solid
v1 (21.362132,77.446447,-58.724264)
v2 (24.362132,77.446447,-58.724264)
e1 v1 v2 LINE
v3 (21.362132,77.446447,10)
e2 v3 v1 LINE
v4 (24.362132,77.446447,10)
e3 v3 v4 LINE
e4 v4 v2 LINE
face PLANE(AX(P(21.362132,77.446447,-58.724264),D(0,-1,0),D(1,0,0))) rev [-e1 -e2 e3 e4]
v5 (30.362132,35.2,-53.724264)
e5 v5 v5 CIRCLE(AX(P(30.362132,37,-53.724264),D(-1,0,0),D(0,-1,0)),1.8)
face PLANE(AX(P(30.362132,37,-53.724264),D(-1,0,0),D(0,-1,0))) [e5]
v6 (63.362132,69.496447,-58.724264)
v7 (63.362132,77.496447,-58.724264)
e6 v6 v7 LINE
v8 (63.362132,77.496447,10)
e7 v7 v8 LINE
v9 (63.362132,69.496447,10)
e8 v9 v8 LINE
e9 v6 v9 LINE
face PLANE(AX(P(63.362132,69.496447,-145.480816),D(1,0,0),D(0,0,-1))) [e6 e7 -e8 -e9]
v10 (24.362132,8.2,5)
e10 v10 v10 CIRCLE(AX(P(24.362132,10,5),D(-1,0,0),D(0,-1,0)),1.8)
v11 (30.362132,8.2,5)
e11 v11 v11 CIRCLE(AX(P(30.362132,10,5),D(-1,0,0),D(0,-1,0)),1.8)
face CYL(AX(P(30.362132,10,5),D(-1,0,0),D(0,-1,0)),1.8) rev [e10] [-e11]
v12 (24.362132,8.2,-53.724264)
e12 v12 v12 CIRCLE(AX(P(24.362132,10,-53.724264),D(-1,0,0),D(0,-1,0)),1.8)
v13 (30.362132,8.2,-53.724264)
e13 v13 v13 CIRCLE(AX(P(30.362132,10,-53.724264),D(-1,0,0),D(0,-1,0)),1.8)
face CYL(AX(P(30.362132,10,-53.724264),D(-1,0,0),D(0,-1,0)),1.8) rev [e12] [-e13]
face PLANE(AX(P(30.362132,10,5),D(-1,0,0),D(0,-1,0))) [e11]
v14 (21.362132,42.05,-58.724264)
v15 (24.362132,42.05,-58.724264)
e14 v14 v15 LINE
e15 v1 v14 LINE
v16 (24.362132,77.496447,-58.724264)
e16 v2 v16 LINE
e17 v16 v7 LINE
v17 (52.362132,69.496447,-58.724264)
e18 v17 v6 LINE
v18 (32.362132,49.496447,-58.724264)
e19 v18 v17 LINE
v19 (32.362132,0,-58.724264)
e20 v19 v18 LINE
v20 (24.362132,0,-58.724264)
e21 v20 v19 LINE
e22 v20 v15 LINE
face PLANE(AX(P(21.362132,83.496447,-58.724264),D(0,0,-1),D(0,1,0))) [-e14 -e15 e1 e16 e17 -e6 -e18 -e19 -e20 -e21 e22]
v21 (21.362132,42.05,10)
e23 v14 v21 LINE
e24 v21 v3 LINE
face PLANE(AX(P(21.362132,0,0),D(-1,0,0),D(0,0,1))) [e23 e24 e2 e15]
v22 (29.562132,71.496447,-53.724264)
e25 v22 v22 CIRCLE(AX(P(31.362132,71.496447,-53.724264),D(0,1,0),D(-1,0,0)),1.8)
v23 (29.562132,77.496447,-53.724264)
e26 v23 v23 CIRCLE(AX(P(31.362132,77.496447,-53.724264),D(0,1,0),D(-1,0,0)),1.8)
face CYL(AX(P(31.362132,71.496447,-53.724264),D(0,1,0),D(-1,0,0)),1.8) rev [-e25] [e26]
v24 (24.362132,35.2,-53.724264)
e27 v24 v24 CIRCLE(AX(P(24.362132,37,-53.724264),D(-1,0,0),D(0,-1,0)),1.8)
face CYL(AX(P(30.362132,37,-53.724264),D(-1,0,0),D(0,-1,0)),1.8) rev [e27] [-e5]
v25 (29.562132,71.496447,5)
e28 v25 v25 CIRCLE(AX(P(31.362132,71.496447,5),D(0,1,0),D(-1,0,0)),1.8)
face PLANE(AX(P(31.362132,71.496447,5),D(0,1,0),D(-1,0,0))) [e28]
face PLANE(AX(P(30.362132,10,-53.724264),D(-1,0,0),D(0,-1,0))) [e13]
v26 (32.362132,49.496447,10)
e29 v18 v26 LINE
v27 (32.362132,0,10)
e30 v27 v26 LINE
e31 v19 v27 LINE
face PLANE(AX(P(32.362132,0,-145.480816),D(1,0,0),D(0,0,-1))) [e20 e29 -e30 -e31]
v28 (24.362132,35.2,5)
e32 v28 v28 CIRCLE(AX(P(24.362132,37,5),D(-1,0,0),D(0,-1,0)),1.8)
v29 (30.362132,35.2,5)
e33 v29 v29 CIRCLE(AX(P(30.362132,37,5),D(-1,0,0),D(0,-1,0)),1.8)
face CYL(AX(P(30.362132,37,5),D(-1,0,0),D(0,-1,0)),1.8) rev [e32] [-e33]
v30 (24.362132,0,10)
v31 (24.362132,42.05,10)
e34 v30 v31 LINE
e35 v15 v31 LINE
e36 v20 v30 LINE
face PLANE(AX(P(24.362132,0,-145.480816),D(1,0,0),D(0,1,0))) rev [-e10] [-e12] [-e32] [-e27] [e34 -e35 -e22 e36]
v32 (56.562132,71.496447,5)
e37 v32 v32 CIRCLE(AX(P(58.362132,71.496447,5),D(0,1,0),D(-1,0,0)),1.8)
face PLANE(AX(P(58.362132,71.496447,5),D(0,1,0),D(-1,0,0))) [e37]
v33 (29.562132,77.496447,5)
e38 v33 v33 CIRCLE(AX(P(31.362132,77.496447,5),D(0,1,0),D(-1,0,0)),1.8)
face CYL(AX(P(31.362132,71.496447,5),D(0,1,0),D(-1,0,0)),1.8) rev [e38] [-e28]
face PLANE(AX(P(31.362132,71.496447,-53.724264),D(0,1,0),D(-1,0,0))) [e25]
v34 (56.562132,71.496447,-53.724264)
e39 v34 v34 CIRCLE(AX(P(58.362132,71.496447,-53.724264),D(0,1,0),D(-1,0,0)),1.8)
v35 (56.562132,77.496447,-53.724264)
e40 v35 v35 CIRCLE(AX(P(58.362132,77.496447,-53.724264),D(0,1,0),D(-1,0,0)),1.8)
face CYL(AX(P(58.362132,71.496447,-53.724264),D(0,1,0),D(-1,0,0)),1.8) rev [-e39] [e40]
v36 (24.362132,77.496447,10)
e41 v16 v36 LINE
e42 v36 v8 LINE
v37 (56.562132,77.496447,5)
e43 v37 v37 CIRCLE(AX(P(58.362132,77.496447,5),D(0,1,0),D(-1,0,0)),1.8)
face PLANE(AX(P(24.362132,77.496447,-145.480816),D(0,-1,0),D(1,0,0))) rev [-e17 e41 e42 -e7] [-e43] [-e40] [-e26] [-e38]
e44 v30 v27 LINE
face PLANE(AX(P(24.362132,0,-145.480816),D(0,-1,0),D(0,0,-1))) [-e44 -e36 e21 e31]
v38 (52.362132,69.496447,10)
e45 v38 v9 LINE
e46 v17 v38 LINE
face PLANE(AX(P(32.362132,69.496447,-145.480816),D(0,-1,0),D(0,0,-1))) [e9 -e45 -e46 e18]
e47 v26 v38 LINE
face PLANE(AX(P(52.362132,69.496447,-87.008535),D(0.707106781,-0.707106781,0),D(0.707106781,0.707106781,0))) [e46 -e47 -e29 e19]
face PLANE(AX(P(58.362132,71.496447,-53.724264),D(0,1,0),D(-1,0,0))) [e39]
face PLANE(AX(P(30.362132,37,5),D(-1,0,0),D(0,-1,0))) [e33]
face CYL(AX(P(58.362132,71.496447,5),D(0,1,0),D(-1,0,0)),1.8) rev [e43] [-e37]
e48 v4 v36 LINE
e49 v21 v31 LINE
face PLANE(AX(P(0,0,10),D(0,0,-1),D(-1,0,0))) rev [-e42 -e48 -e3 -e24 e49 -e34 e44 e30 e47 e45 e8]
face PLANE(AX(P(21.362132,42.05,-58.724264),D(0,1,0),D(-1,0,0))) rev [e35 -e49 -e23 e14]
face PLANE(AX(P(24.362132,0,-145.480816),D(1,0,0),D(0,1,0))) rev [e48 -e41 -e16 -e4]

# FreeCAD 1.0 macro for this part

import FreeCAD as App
import Part
import Sketcher
from FreeCAD import Vector
Q = App.Units.Quantity


def add_polygon(sketch, points):
    """Adds a closed chain of lines whose ends are joined by coincident constraints."""
    first, n = sketch.GeometryCount, len(points)
    for a, b in zip(points, points[1:] + points[:1]):
        sketch.addGeometry(Part.LineSegment(App.Vector(*a, 0), App.Vector(*b, 0)), False)
    for i in range(n):
        sketch.addConstraint(Sketcher.Constraint("Coincident", first + i, 2, first + (i + 1) % n, 1))

doc = App.newDocument("Part")
body = doc.addObject("PartDesign::Body", "Body")

# Sketch on XY plane
sketch1 = body.newObject("Sketcher::SketchObject", "Sketch")
sketch1.AttachmentSupport = (doc.getObject("XY_Plane"), [""])
sketch1.MapMode = "FlatFace"
sketch1.AttachmentOffset = App.Placement(Vector(0, 0, 10), App.Rotation())
add_polygon(sketch1, [(24.362132, 77.496447), (24.362132, 0), (32.362132, 0), (32.362132, 69.496447), (63.362132, 69.496447), (63.362132, 77.496447)])  # lines 0-5
sketch1.addConstraint([
    Sketcher.Constraint("Vertical", 0),
    Sketcher.Constraint("Horizontal", 1),
    Sketcher.Constraint("Vertical", 2),
    Sketcher.Constraint("Horizontal", 3),
    Sketcher.Constraint("Vertical", 4),
    Sketcher.Constraint("Horizontal", 5),
    Sketcher.Constraint("PointOnObject", 0, 2, -1),
    Sketcher.Constraint("Equal", 1, 4),
    Sketcher.Constraint("DistanceX", 1, 1, 1, 2, Q("8 mm")),
    Sketcher.Constraint("DistanceX", 3, 1, 3, 2, Q("31 mm")),
    Sketcher.Constraint("DistanceY", 0, 2, 0, 1, Q("77.496447 mm")),
    Sketcher.Constraint("DistanceX", -1, 1, 0, 2, Q("24.362132 mm")),
])
pad1 = body.newObject("PartDesign::Pad", "Pad")
pad1.Profile = sketch1
pad1.Length = 68.724264
pad1.Reversed = True

# Sketch on XY plane
sketch2 = body.newObject("Sketcher::SketchObject", "Sketch001")
sketch2.AttachmentSupport = (doc.getObject("XY_Plane"), [""])
sketch2.MapMode = "FlatFace"
sketch2.AttachmentOffset = App.Placement(Vector(0, 0, 10), App.Rotation())
add_polygon(sketch2, [(32.362132, 69.496447), (32.362132, 49.496447), (52.362132, 69.496447)])  # lines 0-2
sketch2.addConstraint([
    Sketcher.Constraint("Vertical", 0),
    Sketcher.Constraint("Horizontal", 2),
    Sketcher.Constraint("Equal", 2, 0),
    Sketcher.Constraint("DistanceX", 2, 2, 2, 1, Q("20 mm")),
    Sketcher.Constraint("DistanceX", -1, 1, 0, 2, Q("32.362132 mm")),
    Sketcher.Constraint("DistanceY", -1, 1, 0, 2, Q("49.496447 mm")),
])
pad2 = body.newObject("PartDesign::Pad", "Pad001")
pad2.Profile = sketch2
pad2.Length = 68.724264
pad2.Reversed = True

# Sketch on XZ plane
sketch3 = body.newObject("Sketcher::SketchObject", "Sketch002")
sketch3.AttachmentSupport = (doc.getObject("XZ_Plane"), [""])
sketch3.MapMode = "FlatFace"
sketch3.AttachmentOffset = App.Placement(Vector(0, 0, -77.496447), App.Rotation())
sketch3.addGeometry([
    Part.Circle(Vector(58.362132, -53.724264, 0), Vector(0, 0, 1), 1.8),
    Part.Circle(Vector(31.362132, -53.724264, 0), Vector(0, 0, 1), 1.8),
    Part.Circle(Vector(58.362132, 5, 0), Vector(0, 0, 1), 1.8),
    Part.Circle(Vector(31.362132, 5, 0), Vector(0, 0, 1), 1.8),
], False)
sketch3.addConstraint([
    Sketcher.Constraint("Equal", 0, 1),
    Sketcher.Constraint("Equal", 1, 2),
    Sketcher.Constraint("Equal", 2, 3),
    Sketcher.Constraint("Horizontal", 0, 3, 1, 3),
    Sketcher.Constraint("Horizontal", 2, 3, 3, 3),
    Sketcher.Constraint("Vertical", 0, 3, 2, 3),
    Sketcher.Constraint("Vertical", 1, 3, 3, 3),
    Sketcher.Constraint("Diameter", 0, Q("3.6 mm")),
    Sketcher.Constraint("DistanceY", -1, 1, 2, 3, Q("5 mm")),
    Sketcher.Constraint("DistanceX", 1, 3, 0, 3, Q("27 mm")),
    Sketcher.Constraint("DistanceX", -1, 1, 0, 3, Q("58.362132 mm")),
    Sketcher.Constraint("DistanceY", 0, 3, -1, 1, Q("53.724264 mm")),
])
pocket1 = body.newObject("PartDesign::Pocket", "Pocket")
pocket1.Profile = sketch3
pocket1.Length = 6
pocket1.Reversed = True

# Sketch on YZ plane
sketch4 = body.newObject("Sketcher::SketchObject", "Sketch003")
sketch4.AttachmentSupport = (doc.getObject("YZ_Plane"), [""])
sketch4.MapMode = "FlatFace"
sketch4.AttachmentOffset = App.Placement(Vector(0, 0, 24.362132), App.Rotation())
sketch4.addGeometry([
    Part.Circle(Vector(37, -53.724264, 0), Vector(0, 0, 1), 1.8),
    Part.Circle(Vector(10, -53.724264, 0), Vector(0, 0, 1), 1.8),
    Part.Circle(Vector(10, 5, 0), Vector(0, 0, 1), 1.8),
    Part.Circle(Vector(37, 5, 0), Vector(0, 0, 1), 1.8),
], False)
sketch4.addConstraint([
    Sketcher.Constraint("Equal", 0, 1),
    Sketcher.Constraint("Equal", 1, 2),
    Sketcher.Constraint("Equal", 2, 3),
    Sketcher.Constraint("Horizontal", 0, 3, 1, 3),
    Sketcher.Constraint("Horizontal", 2, 3, 3, 3),
    Sketcher.Constraint("Vertical", 1, 3, 2, 3),
    Sketcher.Constraint("Vertical", 0, 3, 3, 3),
    Sketcher.Constraint("Diameter", 0, Q("3.6 mm")),
    Sketcher.Constraint("DistanceX", -1, 1, 0, 3, Q("37 mm")),
    Sketcher.Constraint("DistanceX", -1, 1, 1, 3, Q("10 mm")),
    Sketcher.Constraint("DistanceY", -1, 1, 2, 3, Q("5 mm")),
    Sketcher.Constraint("DistanceY", 0, 3, -1, 1, Q("53.724264 mm")),
])
pocket2 = body.newObject("PartDesign::Pocket", "Pocket001")
pocket2.Profile = sketch4
pocket2.Length = 6
pocket2.Reversed = True

# Sketch on YZ plane
sketch5 = body.newObject("Sketcher::SketchObject", "Sketch004")
sketch5.AttachmentSupport = (doc.getObject("YZ_Plane"), [""])
sketch5.MapMode = "FlatFace"
sketch5.AttachmentOffset = App.Placement(Vector(0, 0, 24.362132), App.Rotation())
add_polygon(sketch5, [(77.446447, -58.724264), (42.05, -58.724264), (42.05, 10), (77.446447, 10)])  # lines 0-3
sketch5.addConstraint([
    Sketcher.Constraint("Horizontal", 0),
    Sketcher.Constraint("Vertical", 1),
    Sketcher.Constraint("Horizontal", 2),
    Sketcher.Constraint("Vertical", 3),
    Sketcher.Constraint("DistanceY", -1, 1, 1, 2, Q("10 mm")),
    Sketcher.Constraint("DistanceX", -1, 1, 0, 2, Q("42.05 mm")),
    Sketcher.Constraint("DistanceX", 0, 2, 0, 1, Q("35.396447 mm")),
    Sketcher.Constraint("DistanceY", 1, 1, 1, 2, Q("68.724264 mm")),
])
pad3 = body.newObject("PartDesign::Pad", "Pad002")
pad3.Profile = sketch5
pad3.Length = 3
pad3.Reversed = True

doc.recompute()
